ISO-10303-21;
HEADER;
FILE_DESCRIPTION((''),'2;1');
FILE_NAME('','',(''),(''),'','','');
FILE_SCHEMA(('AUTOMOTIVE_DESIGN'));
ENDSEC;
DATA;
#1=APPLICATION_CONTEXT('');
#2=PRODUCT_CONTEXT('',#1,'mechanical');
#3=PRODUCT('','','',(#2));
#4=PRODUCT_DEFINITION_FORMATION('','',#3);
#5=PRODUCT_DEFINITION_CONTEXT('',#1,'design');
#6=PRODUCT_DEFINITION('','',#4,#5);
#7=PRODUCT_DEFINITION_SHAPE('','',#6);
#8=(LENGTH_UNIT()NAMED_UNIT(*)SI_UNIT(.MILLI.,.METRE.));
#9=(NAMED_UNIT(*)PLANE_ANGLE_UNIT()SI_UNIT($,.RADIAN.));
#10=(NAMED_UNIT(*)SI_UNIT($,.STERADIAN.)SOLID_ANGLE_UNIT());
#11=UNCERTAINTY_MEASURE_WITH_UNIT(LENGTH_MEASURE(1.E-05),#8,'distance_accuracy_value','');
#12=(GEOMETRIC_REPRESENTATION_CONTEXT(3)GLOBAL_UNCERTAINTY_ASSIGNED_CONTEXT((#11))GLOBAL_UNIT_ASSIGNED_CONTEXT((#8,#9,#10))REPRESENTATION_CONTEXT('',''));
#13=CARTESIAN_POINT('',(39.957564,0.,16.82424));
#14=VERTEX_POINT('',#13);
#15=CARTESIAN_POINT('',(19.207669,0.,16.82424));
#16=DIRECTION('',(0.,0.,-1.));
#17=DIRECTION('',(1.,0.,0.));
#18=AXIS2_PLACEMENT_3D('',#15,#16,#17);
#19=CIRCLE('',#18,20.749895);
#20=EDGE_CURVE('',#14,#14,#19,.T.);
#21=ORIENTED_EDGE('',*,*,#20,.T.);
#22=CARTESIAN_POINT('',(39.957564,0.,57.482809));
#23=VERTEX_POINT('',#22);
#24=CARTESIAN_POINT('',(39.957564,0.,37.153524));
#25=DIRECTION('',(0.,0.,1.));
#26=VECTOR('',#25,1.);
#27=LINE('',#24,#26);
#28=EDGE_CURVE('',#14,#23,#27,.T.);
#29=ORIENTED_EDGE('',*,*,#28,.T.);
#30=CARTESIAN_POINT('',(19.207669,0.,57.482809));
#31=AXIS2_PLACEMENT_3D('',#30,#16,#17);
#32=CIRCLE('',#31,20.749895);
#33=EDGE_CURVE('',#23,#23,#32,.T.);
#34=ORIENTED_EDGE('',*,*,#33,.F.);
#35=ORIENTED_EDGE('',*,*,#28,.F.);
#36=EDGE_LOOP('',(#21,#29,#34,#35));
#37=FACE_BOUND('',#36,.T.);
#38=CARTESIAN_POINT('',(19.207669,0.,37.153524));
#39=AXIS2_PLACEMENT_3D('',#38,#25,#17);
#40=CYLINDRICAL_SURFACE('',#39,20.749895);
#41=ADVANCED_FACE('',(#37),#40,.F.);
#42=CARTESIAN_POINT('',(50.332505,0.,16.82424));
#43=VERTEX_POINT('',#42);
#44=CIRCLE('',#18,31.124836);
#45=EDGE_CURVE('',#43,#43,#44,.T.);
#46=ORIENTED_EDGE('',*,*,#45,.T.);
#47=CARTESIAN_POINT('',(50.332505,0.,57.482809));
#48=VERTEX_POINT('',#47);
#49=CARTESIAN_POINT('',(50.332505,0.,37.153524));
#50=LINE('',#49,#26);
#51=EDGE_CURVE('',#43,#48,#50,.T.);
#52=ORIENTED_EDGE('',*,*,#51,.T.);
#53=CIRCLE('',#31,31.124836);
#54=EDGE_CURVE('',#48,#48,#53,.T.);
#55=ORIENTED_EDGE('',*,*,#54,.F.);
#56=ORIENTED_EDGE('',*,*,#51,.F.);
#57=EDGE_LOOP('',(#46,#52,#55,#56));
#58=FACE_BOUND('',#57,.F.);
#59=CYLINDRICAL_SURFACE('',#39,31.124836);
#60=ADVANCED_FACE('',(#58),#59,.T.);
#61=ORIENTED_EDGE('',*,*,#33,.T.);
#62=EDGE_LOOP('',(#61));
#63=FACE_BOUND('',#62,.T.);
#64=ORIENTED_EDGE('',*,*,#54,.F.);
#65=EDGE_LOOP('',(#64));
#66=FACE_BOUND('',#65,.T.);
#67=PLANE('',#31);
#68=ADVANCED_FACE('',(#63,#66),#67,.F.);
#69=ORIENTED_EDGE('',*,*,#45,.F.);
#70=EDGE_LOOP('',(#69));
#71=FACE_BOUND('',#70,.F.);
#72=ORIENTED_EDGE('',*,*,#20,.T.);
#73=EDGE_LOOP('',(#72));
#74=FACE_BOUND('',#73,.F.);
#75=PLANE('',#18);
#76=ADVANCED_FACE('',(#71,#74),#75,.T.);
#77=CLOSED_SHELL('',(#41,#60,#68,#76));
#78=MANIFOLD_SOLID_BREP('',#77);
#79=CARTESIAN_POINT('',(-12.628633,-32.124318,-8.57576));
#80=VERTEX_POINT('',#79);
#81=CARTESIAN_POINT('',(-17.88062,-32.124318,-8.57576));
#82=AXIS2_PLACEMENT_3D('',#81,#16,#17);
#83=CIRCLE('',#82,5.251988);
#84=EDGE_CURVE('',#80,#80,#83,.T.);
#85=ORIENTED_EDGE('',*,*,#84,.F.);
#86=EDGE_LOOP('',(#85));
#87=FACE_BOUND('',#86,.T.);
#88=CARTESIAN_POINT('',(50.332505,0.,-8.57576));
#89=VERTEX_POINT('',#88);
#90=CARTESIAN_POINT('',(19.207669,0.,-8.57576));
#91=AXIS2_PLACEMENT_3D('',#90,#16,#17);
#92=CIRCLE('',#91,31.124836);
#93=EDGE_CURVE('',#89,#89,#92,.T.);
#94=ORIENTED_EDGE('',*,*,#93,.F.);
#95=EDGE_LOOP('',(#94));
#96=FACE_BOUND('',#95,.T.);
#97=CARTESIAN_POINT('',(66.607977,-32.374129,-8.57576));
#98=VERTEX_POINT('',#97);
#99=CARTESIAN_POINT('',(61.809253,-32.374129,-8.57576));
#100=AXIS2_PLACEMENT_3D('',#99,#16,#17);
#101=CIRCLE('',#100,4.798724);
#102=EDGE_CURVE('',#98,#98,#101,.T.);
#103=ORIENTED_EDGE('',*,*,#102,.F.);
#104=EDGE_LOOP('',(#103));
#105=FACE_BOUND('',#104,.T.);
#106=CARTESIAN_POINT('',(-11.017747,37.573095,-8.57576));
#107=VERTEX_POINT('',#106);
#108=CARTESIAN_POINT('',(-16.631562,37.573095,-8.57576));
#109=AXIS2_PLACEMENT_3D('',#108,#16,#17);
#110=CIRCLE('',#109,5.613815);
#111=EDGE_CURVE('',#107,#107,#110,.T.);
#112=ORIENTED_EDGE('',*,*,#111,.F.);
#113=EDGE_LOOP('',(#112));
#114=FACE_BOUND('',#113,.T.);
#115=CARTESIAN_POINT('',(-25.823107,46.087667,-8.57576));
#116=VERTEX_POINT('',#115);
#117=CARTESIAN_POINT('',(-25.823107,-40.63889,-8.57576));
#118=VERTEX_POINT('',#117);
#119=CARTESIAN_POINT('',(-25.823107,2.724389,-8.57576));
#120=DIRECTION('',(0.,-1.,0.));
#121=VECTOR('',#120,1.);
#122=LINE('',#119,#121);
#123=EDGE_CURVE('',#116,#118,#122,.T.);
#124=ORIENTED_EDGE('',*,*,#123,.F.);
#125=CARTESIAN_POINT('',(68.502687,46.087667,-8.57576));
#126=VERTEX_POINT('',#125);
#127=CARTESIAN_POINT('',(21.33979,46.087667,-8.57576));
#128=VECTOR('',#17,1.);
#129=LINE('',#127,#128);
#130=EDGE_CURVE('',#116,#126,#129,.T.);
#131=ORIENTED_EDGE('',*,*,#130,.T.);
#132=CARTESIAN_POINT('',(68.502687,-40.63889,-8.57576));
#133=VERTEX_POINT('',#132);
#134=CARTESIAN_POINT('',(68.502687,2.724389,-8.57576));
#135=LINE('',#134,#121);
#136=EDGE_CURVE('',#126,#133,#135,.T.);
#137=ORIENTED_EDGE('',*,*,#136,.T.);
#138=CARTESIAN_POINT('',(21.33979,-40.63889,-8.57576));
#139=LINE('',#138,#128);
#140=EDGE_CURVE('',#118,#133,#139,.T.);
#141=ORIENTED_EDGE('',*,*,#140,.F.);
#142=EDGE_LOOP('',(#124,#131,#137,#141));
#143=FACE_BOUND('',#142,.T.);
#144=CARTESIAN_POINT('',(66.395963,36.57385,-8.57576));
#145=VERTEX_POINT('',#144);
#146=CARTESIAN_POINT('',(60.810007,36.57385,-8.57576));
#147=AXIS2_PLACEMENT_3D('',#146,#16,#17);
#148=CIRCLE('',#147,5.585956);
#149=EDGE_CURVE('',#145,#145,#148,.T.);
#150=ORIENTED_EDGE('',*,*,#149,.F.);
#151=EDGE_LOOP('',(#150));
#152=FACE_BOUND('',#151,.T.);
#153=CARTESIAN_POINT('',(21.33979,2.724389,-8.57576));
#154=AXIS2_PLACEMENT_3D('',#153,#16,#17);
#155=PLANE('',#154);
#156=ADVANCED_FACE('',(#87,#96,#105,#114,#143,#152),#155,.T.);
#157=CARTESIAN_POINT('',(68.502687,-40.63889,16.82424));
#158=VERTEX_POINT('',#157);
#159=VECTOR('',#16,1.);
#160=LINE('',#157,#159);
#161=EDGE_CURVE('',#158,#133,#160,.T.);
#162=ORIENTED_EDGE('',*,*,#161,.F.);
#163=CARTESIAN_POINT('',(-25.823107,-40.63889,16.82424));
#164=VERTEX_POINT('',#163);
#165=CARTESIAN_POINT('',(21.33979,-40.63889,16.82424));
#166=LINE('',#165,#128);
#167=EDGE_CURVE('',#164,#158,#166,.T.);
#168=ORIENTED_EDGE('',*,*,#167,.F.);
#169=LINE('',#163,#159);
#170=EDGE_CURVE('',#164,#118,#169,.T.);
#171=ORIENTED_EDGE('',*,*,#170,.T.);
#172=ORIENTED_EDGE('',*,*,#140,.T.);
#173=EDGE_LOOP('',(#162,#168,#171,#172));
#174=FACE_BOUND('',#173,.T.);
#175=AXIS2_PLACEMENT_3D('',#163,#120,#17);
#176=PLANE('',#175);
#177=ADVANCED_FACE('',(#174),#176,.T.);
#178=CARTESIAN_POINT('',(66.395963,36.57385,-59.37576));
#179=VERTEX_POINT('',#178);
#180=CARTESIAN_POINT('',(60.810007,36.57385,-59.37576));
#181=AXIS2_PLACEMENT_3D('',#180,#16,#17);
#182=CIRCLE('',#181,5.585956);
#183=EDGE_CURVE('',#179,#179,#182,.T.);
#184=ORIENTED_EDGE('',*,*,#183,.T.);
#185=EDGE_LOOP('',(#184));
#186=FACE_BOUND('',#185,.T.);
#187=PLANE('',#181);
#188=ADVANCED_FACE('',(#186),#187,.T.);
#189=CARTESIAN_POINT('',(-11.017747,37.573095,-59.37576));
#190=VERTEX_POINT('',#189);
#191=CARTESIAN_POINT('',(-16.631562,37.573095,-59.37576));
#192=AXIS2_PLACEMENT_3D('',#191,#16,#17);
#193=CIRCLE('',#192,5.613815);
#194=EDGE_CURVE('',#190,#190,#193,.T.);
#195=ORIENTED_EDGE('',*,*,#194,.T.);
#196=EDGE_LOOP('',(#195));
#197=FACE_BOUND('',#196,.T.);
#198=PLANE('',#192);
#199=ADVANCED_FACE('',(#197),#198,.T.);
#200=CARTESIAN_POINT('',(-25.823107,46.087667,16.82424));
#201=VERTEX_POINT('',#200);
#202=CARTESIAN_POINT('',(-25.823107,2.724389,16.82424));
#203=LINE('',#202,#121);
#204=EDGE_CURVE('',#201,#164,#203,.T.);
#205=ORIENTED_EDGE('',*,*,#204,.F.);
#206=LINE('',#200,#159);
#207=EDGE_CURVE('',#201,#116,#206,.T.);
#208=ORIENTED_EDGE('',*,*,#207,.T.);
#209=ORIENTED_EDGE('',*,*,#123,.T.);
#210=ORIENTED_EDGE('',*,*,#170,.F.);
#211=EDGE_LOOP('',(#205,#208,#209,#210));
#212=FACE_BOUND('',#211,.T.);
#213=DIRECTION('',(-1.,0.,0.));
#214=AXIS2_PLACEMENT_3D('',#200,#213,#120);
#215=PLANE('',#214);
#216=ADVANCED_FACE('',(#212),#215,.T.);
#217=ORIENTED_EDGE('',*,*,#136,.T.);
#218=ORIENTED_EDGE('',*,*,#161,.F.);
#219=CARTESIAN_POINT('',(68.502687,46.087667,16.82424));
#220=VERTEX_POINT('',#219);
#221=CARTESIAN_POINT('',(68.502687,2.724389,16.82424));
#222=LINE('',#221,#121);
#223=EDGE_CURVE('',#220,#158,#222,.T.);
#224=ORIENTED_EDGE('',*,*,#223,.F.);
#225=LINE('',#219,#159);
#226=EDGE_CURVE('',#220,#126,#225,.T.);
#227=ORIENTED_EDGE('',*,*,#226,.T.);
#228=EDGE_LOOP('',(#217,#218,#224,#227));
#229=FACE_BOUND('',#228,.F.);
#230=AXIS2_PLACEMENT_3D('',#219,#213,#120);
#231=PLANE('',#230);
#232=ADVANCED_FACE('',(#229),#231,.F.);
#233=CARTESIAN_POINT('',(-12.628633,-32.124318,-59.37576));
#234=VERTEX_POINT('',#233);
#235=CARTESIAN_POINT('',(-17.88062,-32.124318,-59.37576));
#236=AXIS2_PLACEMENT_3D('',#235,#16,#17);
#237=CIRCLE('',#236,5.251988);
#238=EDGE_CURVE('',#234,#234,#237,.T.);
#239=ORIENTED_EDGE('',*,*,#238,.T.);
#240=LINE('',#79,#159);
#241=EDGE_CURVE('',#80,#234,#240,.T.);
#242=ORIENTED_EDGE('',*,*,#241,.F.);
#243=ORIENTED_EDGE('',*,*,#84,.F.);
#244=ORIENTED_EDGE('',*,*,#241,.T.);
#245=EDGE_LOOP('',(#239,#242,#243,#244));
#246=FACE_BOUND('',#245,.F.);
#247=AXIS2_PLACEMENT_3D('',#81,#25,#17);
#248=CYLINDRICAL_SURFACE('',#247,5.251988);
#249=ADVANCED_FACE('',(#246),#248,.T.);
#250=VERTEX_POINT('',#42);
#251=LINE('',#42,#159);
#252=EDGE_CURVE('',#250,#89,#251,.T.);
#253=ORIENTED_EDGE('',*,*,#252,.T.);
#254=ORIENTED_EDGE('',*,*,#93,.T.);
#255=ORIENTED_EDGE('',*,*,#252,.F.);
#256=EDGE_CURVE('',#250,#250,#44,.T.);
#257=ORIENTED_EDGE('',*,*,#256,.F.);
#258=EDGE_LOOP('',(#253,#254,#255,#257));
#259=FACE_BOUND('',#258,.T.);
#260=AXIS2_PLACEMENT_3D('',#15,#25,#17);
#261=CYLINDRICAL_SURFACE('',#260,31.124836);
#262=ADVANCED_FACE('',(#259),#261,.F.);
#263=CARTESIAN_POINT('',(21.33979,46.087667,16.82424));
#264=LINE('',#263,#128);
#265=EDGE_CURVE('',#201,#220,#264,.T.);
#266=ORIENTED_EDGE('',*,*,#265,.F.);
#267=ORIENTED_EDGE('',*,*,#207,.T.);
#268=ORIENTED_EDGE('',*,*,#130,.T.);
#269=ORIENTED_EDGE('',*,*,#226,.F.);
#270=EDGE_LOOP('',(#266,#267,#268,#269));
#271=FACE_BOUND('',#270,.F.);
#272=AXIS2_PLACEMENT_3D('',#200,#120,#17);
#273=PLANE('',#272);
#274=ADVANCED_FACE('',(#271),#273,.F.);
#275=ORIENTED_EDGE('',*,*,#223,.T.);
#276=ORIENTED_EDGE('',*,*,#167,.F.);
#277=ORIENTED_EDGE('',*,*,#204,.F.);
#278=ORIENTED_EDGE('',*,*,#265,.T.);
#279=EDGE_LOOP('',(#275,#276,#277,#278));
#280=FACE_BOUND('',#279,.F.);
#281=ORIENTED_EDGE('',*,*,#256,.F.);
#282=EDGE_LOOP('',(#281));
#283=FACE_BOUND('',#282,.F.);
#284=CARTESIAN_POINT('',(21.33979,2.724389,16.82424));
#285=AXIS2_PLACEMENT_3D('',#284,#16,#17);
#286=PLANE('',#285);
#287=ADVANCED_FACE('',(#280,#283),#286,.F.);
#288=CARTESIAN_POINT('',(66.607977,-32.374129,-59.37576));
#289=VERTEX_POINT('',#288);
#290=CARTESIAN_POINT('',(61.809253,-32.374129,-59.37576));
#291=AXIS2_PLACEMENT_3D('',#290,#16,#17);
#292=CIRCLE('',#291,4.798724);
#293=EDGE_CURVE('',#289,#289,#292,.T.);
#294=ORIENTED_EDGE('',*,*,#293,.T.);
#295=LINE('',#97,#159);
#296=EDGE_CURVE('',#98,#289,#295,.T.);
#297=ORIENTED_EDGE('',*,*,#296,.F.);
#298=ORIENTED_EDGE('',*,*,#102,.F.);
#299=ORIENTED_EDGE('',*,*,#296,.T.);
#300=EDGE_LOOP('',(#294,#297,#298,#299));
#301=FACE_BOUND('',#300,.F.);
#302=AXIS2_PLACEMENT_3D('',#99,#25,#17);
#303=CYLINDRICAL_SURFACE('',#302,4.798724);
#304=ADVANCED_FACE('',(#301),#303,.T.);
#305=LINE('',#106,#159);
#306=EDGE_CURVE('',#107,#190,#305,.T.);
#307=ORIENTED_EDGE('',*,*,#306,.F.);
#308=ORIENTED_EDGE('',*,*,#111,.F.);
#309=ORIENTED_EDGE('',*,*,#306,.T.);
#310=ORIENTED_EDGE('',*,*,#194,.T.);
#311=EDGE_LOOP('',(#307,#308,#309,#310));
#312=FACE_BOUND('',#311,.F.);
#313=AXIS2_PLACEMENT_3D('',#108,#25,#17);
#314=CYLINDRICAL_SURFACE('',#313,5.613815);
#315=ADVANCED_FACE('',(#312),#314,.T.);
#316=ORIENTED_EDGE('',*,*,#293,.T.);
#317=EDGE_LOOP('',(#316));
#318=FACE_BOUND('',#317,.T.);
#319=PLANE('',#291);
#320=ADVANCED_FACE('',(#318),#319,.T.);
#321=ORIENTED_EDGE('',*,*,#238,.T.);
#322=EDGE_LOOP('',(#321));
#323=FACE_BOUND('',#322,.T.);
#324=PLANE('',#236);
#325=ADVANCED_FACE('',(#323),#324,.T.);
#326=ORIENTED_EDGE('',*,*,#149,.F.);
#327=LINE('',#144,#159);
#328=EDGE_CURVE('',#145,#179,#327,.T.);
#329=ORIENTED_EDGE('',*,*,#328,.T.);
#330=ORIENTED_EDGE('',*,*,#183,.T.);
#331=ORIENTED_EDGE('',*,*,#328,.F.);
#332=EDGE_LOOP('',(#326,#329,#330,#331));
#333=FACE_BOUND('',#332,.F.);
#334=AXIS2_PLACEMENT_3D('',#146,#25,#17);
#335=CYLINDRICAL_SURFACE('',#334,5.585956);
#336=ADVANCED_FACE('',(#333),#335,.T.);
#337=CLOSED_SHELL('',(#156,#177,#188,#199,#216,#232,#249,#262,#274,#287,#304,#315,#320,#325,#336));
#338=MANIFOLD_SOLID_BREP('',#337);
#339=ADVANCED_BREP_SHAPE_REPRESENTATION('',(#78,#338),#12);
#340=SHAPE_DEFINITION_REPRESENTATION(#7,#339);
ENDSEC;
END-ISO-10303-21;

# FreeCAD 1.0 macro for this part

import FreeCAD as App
import Part
import Sketcher
from FreeCAD import Vector
Q = App.Units.Quantity


def add_polygon(sketch, points):
    """Adds a closed chain of lines whose ends are joined by coincident constraints."""
    first, n = sketch.GeometryCount, len(points)
    for a, b in zip(points, points[1:] + points[:1]):
        sketch.addGeometry(Part.LineSegment(App.Vector(*a, 0), App.Vector(*b, 0)), False)
    for i in range(n):
        sketch.addConstraint(Sketcher.Constraint("Coincident", first + i, 2, first + (i + 1) % n, 1))

doc = App.newDocument("Part")
body = doc.addObject("PartDesign::Body", "Body")

sketch1 = body.newObject("Sketcher::SketchObject", "Sketch")
sketch1.AttachmentSupport = (doc.getObject("XZ_Plane"), [""])
sketch1.MapMode = "FlatFace"
add_polygon(sketch1, [(40, 57), (40, 17), (50, 17), (50, 57)])
sketch1.addGeometry(Part.LineSegment(Vector(19, 57, 0), Vector(19, 17, 0)), True)
sketch1.addConstraint([
    Sketcher.Constraint("Vertical", 0),
    Sketcher.Constraint("Horizontal", 1),
    Sketcher.Constraint("Vertical", 2),
    Sketcher.Constraint("Horizontal", 3),
    Sketcher.Constraint("Vertical", 4),
    Sketcher.Constraint("Horizontal", 3, 2, 4, 1),
    Sketcher.Constraint("Horizontal", 1, 2, 4, 2),
    Sketcher.Constraint("DistanceX", 1, 1, 1, 2, 10.374941),
    Sketcher.Constraint("DistanceY", 0, 2, 0, 1, 40.658569),
    Sketcher.Constraint("DistanceY", -1, 1, 0, 2, 16.82424),
    Sketcher.Constraint("DistanceX", -1, 1, 4, 1, 19.207669),
    Sketcher.Constraint("DistanceX", -1, 1, 0, 2, 39.957564),
])
revolution = body.newObject("PartDesign::Revolution", "Revolution")
revolution.Profile = sketch1
revolution.ReferenceAxis = (sketch1, ["Axis0"])
revolution.Angle = 360
body2 = doc.addObject("PartDesign::Body", "Body001")

sketch2 = body2.newObject("Sketcher::SketchObject", "Sketch001")
sketch2.AttachmentSupport = (doc.getObject("XY_Plane001"), [""])
sketch2.MapMode = "FlatFace"
sketch2.AttachmentOffset = App.Placement(Vector(0, 0, 16.82424), App.Rotation())
add_polygon(sketch2, [(-26, -41), (-26, 46), (69, 46), (69, -41)])
sketch2.addGeometry(Part.Circle(Vector(19, 0, 0), Vector(0, 0, 1), 31), False)
sketch2.addConstraint([
    Sketcher.Constraint("Vertical", 0),
    Sketcher.Constraint("Horizontal", 1),
    Sketcher.Constraint("Vertical", 2),
    Sketcher.Constraint("Horizontal", 3),
    Sketcher.Constraint("PointOnObject", 4, 3, -1),
    Sketcher.Constraint("Diameter", 4, 62.249672),
    Sketcher.Constraint("DistanceX", 1, 1, 1, 2, 94.325794),
    Sketcher.Constraint("DistanceY", 0, 1, 0, 2, 86.726557),
    Sketcher.Constraint("DistanceX", -1, 1, 4, 3, 19.207669),
    Sketcher.Constraint("DistanceY", 2, 2, -1, 1, 40.63889),
    Sketcher.Constraint("DistanceX", 0, 2, -1, 1, 25.823107),
])
pad1 = body2.newObject("PartDesign::Pad", "Pad")
pad1.Profile = sketch2
pad1.Length = Q("1 in")
pad1.Reversed = True

sketch3 = body2.newObject("Sketcher::SketchObject", "Sketch002")
sketch3.AttachmentSupport = (doc.getObject("XY_Plane001"), [""])
sketch3.MapMode = "FlatFace"
sketch3.AttachmentOffset = App.Placement(Vector(0, 0, -8.57576), App.Rotation())
sketch3.addGeometry([
    Part.Circle(Vector(60.8, 36.6, 0), Vector(0, 0, 1), 5.6),
    Part.Circle(Vector(-16.6, 37.6, 0), Vector(0, 0, 1), 5.6),
    Part.Circle(Vector(-17.9, -32.1, 0), Vector(0, 0, 1), 5.3),
    Part.Circle(Vector(61.8, -32.4, 0), Vector(0, 0, 1), 4.8),
], False)
sketch3.addConstraint([
    Sketcher.Constraint("Diameter", 1, 11.22763),
    Sketcher.Constraint("Diameter", 3, 9.597449),
    Sketcher.Constraint("Diameter", 0, 11.171913),
    Sketcher.Constraint("Diameter", 2, 10.503976),
    Sketcher.Constraint("DistanceY", -1, 1, 0, 3, 36.57385),
    Sketcher.Constraint("DistanceX", 2, 3, -1, 1, 17.88062),
    Sketcher.Constraint("DistanceY", 2, 3, -1, 1, 32.124318),
    Sketcher.Constraint("DistanceY", 3, 3, -1, 1, 32.374129),
    Sketcher.Constraint("DistanceX", 1, 3, 0, 3, 77.441569),
    Sketcher.Constraint("DistanceX", 2, 3, 1, 3, 1.249058),
    Sketcher.Constraint("DistanceY", -1, 1, 1, 3, 37.573095),
    Sketcher.Constraint("DistanceX", -1, 1, 3, 3, 61.809253),
])
pad2 = body2.newObject("PartDesign::Pad", "Pad001")
pad2.Profile = sketch3
pad2.Length = Q("2 in")
pad2.Reversed = True

doc.recompute()
